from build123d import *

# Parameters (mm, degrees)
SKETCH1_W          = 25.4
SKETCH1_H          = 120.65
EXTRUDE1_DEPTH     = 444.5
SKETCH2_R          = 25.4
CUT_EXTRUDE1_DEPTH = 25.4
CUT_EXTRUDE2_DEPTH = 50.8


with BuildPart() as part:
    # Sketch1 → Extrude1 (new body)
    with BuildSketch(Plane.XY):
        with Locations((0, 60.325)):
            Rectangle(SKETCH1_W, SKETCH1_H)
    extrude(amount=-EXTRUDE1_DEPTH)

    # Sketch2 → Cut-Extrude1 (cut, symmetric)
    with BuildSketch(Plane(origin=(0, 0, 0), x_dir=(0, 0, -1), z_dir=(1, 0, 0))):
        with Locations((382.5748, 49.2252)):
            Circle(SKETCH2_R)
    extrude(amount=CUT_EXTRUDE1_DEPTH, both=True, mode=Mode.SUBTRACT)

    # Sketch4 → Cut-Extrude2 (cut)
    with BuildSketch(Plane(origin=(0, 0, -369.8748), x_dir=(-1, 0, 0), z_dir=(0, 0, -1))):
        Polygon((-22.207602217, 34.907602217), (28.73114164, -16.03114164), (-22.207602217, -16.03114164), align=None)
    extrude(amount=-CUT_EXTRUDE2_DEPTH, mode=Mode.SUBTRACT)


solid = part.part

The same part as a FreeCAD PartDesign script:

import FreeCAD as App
import Part
import Sketcher
Q = App.Units.Quantity

doc = App.newDocument("Part")
body = doc.addObject("PartDesign::Body", "Body")

sketch1 = body.newObject("Sketcher::SketchObject", "Sketch")
sketch1.AttachmentSupport = (doc.getObject("XY_Plane"), [""])
sketch1.MapMode = "FlatFace"
sketch1.addGeometry([
    Part.LineSegment(App.Vector(-13, 121, 0), App.Vector(-13, 0, 0)),
    Part.LineSegment(App.Vector(-13, 0, 0), App.Vector(13, 0, 0)),
    Part.LineSegment(App.Vector(13, 0, 0), App.Vector(13, 121, 0)),
    Part.LineSegment(App.Vector(13, 121, 0), App.Vector(-13, 121, 0)),
], False)
sketch1.addConstraint([
    Sketcher.Constraint("Coincident", 0, 2, 1, 1),
    Sketcher.Constraint("Coincident", 1, 2, 2, 1),
    Sketcher.Constraint("Coincident", 2, 2, 3, 1),
    Sketcher.Constraint("Coincident", 3, 2, 0, 1),
    Sketcher.Constraint("Vertical", 0),
    Sketcher.Constraint("Horizontal", 1),
    Sketcher.Constraint("Vertical", 2),
    Sketcher.Constraint("Horizontal", 3),
    Sketcher.Constraint("Symmetric", 0, 2, 1, 2, -1, 1),
    Sketcher.Constraint("DistanceX", 1, 1, 1, 2, Q("1 in")),
    Sketcher.Constraint("DistanceY", 0, 2, 0, 1, Q("4.75 in")),
])
pad1 = body.newObject("PartDesign::Pad", "Pad")
pad1.Profile = sketch1
pad1.Length = Q("17.5 in")
pad1.Reversed = True

sketch2 = body.newObject("Sketcher::SketchObject", "Sketch001")
sketch2.AttachmentSupport = (doc.getObject("YZ_Plane"), [""])
sketch2.MapMode = "FlatFace"
sketch2.addGeometry(Part.Circle(App.Vector(49, -383, 0), App.Vector(0, 0, 1), 25), False)
sketch2.addConstraint([
    Sketcher.Constraint("Diameter", 0, Q("2 in")),
    Sketcher.Constraint("DistanceX", -1, 1, 0, 3, Q("1.938 in")),
    Sketcher.Constraint("DistanceY", 0, 3, -1, 1, Q("15.062 in")),
])
pocket1 = body.newObject("PartDesign::Pocket", "Pocket")
pocket1.Profile = sketch2
pocket1.Length = Q("2 in")
pocket1.Midplane = True

sketch3 = body.newObject("Sketcher::SketchObject", "Sketch002")
sketch3.AttachmentSupport = (doc.getObject("XY_Plane"), [""])
sketch3.MapMode = "FlatFace"
sketch3.AttachmentOffset = App.Placement(App.Vector(0, 0, -14.562 * 25.4), App.Rotation())
sketch3.addGeometry([
    Part.LineSegment(App.Vector(-29, -16, 0), App.Vector(22, 35, 0)),
    Part.LineSegment(App.Vector(22, 35, 0), App.Vector(22, -16, 0)),
    Part.LineSegment(App.Vector(22, -16, 0), App.Vector(-29, -16, 0)),
], False)
sketch3.addConstraint([
    Sketcher.Constraint("Coincident", 0, 2, 1, 1),
    Sketcher.Constraint("Coincident", 1, 2, 2, 1),
    Sketcher.Constraint("Coincident", 2, 2, 0, 1),
    Sketcher.Constraint("Vertical", 1),
    Sketcher.Constraint("Horizontal", 2),
    Sketcher.Constraint("Equal", 2, 1),
    Sketcher.Constraint("DistanceX", 2, 2, 2, 1, Q("50.938744 mm")),
    Sketcher.Constraint("DistanceY", 1, 2, -1, 1, Q("16.031142 mm")),
    Sketcher.Constraint("DistanceX", 2, 2, -1, 1, Q("28.731142 mm")),
])
pocket2 = body.newObject("PartDesign::Pocket", "Pocket001")
pocket2.Profile = sketch3
pocket2.Length = Q("2 in")
pocket2.Reversed = True

doc.recompute()
